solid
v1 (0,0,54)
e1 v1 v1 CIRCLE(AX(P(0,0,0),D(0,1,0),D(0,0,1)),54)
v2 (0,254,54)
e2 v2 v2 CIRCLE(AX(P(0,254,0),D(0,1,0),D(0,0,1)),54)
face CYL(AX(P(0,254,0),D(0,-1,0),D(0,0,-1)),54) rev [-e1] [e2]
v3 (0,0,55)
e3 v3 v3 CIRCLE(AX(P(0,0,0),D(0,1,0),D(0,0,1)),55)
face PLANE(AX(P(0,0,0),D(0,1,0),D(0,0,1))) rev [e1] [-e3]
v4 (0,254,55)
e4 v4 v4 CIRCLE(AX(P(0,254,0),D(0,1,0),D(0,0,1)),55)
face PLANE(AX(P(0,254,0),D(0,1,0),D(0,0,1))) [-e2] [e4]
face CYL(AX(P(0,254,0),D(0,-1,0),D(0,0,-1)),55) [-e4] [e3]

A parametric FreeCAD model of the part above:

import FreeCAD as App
import Part
import Sketcher

V = App.Vector
Q = App.Units.Quantity

doc = App.newDocument("Part")
body = doc.addObject("PartDesign::Body", "Body")

# Sketch on XZ plane
sketch1 = body.newObject("Sketcher::SketchObject", "Sketch")
sketch1.AttachmentSupport = (doc.getObject("XZ_Plane"), [""])
sketch1.MapMode = "FlatFace"
sketch1.addGeometry([
    Part.Circle(V(0, 0, 0), V(0, 0, 1), 55),
    Part.Circle(V(0, 0, 0), V(0, 0, 1), 54),
], False)
sketch1.addConstraint([
    Sketcher.Constraint("Coincident", 0, 3, -1, 1),
    Sketcher.Constraint("Coincident", 1, 3, -1, 1),
    Sketcher.Constraint("Diameter", 0, Q("110 mm")),
    Sketcher.Constraint("Diameter", 1, Q("108 mm")),
])
pad1 = body.newObject("PartDesign::Pad", "Pad")
pad1.Profile = sketch1
pad1.Length = 254
pad1.Reversed = True

doc.recompute()
